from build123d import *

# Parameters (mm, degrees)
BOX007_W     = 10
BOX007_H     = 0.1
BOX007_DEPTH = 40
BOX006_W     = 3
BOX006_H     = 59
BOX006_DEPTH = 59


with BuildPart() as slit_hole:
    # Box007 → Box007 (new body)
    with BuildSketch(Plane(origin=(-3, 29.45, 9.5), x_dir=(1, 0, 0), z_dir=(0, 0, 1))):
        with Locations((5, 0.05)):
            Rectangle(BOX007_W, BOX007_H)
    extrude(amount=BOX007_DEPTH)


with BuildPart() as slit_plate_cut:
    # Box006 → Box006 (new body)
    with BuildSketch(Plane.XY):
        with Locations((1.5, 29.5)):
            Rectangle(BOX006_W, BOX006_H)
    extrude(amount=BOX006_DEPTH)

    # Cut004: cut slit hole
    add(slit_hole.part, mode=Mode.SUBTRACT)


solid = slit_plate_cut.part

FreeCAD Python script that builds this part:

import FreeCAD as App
import Part
import Sketcher
Q = App.Units.Quantity

doc = App.newDocument("Part")
body = doc.addObject("PartDesign::Body", "Body")

sketch1 = body.newObject("Sketcher::SketchObject", "Sketch")
sketch1.AttachmentSupport = (doc.getObject("XY_Plane"), [""])
sketch1.MapMode = "FlatFace"
sketch1.AttachmentOffset = App.Placement(App.Vector(0, 0, 9.5), App.Rotation())
sketch1.addGeometry([
    Part.LineSegment(App.Vector(-3, 29.55, 0), App.Vector(-3, 29.45, 0)),
    Part.LineSegment(App.Vector(-3, 29.45, 0), App.Vector(7, 29.45, 0)),
    Part.LineSegment(App.Vector(7, 29.45, 0), App.Vector(7, 29.55, 0)),
    Part.LineSegment(App.Vector(7, 29.55, 0), App.Vector(-3, 29.55, 0)),
], False)
sketch1.addConstraint([
    Sketcher.Constraint("Coincident", 0, 2, 1, 1),
    Sketcher.Constraint("Coincident", 1, 2, 2, 1),
    Sketcher.Constraint("Coincident", 2, 2, 3, 1),
    Sketcher.Constraint("Coincident", 3, 2, 0, 1),
    Sketcher.Constraint("Vertical", 0),
    Sketcher.Constraint("Horizontal", 1),
    Sketcher.Constraint("Vertical", 2),
    Sketcher.Constraint("Horizontal", 3),
    Sketcher.Constraint("DistanceX", 1, 1, 1, 2, Q("10 mm")),
    Sketcher.Constraint("DistanceY", 0, 2, 0, 1, Q("0.1 mm")),
    Sketcher.Constraint("DistanceX", 0, 2, -1, 1, Q("3 mm")),
    Sketcher.Constraint("DistanceY", -1, 1, 0, 2, Q("29.45 mm")),
])
pad1 = body.newObject("PartDesign::Pad", "Pad")
pad1.Profile = sketch1
pad1.Length = 40
body2 = doc.addObject("PartDesign::Body", "Body001")

sketch2 = body2.newObject("Sketcher::SketchObject", "Sketch001")
sketch2.AttachmentSupport = (doc.getObject("XY_Plane001"), [""])
sketch2.MapMode = "FlatFace"
sketch2.addGeometry([
    Part.LineSegment(App.Vector(0, 59, 0), App.Vector(0, 0, 0)),
    Part.LineSegment(App.Vector(0, 0, 0), App.Vector(3, 0, 0)),
    Part.LineSegment(App.Vector(3, 0, 0), App.Vector(3, 59, 0)),
    Part.LineSegment(App.Vector(3, 59, 0), App.Vector(0, 59, 0)),
], False)
sketch2.addConstraint([
    Sketcher.Constraint("Coincident", 0, 2, 1, 1),
    Sketcher.Constraint("Coincident", 1, 2, 2, 1),
    Sketcher.Constraint("Coincident", 2, 2, 3, 1),
    Sketcher.Constraint("Coincident", 3, 2, 0, 1),
    Sketcher.Constraint("Vertical", 0),
    Sketcher.Constraint("Horizontal", 1),
    Sketcher.Constraint("Vertical", 2),
    Sketcher.Constraint("Horizontal", 3),
    Sketcher.Constraint("Coincident", 0, 2, -1, 1),
    Sketcher.Constraint("DistanceX", 1, 1, 1, 2, Q("3 mm")),
    Sketcher.Constraint("DistanceY", 0, 2, 0, 1, Q("59 mm")),
])
pad2 = body2.newObject("PartDesign::Pad", "Pad001")
pad2.Profile = sketch2
pad2.Length = 59
doc.recompute()

boolean = body2.newObject("PartDesign::Boolean", "Boolean")
boolean.Type = "Cut"
boolean.addObjects([body])

doc.recompute()
